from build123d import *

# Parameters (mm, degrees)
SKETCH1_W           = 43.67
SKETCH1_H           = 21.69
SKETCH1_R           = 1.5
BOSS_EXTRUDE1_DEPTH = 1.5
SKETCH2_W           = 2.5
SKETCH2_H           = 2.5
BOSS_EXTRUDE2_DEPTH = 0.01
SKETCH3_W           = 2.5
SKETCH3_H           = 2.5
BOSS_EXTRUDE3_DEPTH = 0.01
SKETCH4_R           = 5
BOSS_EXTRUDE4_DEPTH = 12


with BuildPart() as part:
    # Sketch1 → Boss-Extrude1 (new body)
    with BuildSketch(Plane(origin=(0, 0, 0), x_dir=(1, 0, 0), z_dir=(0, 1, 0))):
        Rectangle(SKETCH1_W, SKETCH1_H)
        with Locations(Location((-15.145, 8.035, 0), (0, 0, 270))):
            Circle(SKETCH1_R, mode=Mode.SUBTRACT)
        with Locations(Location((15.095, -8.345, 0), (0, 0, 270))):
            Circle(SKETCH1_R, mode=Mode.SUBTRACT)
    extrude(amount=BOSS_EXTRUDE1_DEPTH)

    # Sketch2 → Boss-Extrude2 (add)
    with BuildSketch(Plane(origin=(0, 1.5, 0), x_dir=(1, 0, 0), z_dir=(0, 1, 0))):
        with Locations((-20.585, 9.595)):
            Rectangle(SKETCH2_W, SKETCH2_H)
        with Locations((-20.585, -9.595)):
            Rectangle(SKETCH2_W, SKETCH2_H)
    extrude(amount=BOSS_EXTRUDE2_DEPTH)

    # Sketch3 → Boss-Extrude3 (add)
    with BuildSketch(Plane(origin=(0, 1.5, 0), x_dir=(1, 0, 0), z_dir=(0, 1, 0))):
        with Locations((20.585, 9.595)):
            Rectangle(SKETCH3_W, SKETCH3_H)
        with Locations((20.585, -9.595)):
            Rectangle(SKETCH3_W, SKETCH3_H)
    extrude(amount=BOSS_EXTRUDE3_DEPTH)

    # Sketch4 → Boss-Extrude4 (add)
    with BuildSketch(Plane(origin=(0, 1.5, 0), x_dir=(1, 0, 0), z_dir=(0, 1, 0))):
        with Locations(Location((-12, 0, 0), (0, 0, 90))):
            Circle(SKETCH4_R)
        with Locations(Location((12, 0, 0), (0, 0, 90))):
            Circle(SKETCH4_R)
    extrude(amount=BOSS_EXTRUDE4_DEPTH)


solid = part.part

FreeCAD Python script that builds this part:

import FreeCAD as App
import Part
import Sketcher


def add_polygon(sketch, points):
    """Adds a closed chain of lines whose ends are joined by coincident constraints."""
    first, n = sketch.GeometryCount, len(points)
    for a, b in zip(points, points[1:] + points[:1]):
        sketch.addGeometry(Part.LineSegment(App.Vector(*a, 0), App.Vector(*b, 0)), False)
    for i in range(n):
        sketch.addConstraint(Sketcher.Constraint("Coincident", first + i, 2, first + (i + 1) % n, 1))

doc = App.newDocument("Part")
body = doc.addObject("PartDesign::Body", "Body")

# Sketch on XZ plane
sketch1 = body.newObject("Sketcher::SketchObject", "Sketch")
sketch1.AttachmentSupport = (doc.getObject("XZ_Plane"), [""])
sketch1.MapMode = "FlatFace"
add_polygon(sketch1, [(-21.8, -10.8), (-21.8, 10.8), (21.8, 10.8), (21.8, -10.8)])  # lines 0-3
sketch1.addGeometry(Part.Circle(App.Vector(15.1, 8.3, 0), App.Vector(0, 0, 1), 1.5), False)  # 4
sketch1.addGeometry(Part.Circle(App.Vector(-15.1, -8, 0), App.Vector(0, 0, 1), 1.5), False)  # 5
sketch1.addConstraint([
    Sketcher.Constraint("Vertical", 0),
    Sketcher.Constraint("Horizontal", 1),
    Sketcher.Constraint("Vertical", 2),
    Sketcher.Constraint("Horizontal", 3),
    Sketcher.Constraint("Equal", 4, 5),
    Sketcher.Constraint("Symmetric", 0, 2, 2, 2, -1, 1),
    Sketcher.Constraint("Diameter", 4, 3.0),
    Sketcher.Constraint("DistanceX", 1, 1, 1, 2, 43.67),
    Sketcher.Constraint("DistanceY", 0, 1, 0, 2, 21.69),
    Sketcher.Constraint("DistanceY", 4, 3, 0, 2, 2.5),
    Sketcher.Constraint("DistanceX", 5, 3, 4, 3, 30.24),
    Sketcher.Constraint("DistanceY", 5, 3, 4, 3, 16.38),
    Sketcher.Constraint("DistanceX", 0, 2, 5, 3, 6.69),
])
pad1 = body.newObject("PartDesign::Pad", "Pad")
pad1.Profile = sketch1
pad1.Length = 1.5
pad1.Reversed = True

# Sketch on XZ plane
sketch2 = body.newObject("Sketcher::SketchObject", "Sketch001")
sketch2.AttachmentSupport = (doc.getObject("XZ_Plane"), [""])
sketch2.MapMode = "FlatFace"
sketch2.AttachmentOffset = App.Placement(App.Vector(0, 0, -1.5), App.Rotation())
add_polygon(sketch2, [(-21.8, -10.8), (-21.8, -8.3), (-19.3, -8.3), (-19.3, -10.8)])  # lines 0-3
add_polygon(sketch2, [(-21.8, 8.3), (-21.8, 10.8), (-19.3, 10.8), (-19.3, 8.3)])  # lines 4-7
sketch2.addConstraint([
    Sketcher.Constraint("Vertical", 0),
    Sketcher.Constraint("Horizontal", 1),
    Sketcher.Constraint("Vertical", 2),
    Sketcher.Constraint("Horizontal", 3),
    Sketcher.Constraint("Vertical", 4),
    Sketcher.Constraint("Horizontal", 5),
    Sketcher.Constraint("Vertical", 6),
    Sketcher.Constraint("Horizontal", 7),
    Sketcher.Constraint("Symmetric", 3, 2, 4, 2, -1),
    Sketcher.Constraint("Symmetric", 1, 2, 6, 2, -1),
    Sketcher.Constraint("Equal", 7, 0),
    Sketcher.Constraint("DistanceX", 1, 1, 1, 2, 2.5),
    Sketcher.Constraint("DistanceY", 0, 2, 4, 2, 19.19),
    Sketcher.Constraint("DistanceX", 0, 2, -1, 1, 21.835),
])
pad2 = body.newObject("PartDesign::Pad", "Pad001")
pad2.Profile = sketch2
pad2.Length = 0.01
pad2.Reversed = True

# Sketch on XZ plane
sketch3 = body.newObject("Sketcher::SketchObject", "Sketch002")
sketch3.AttachmentSupport = (doc.getObject("XZ_Plane"), [""])
sketch3.MapMode = "FlatFace"
sketch3.AttachmentOffset = App.Placement(App.Vector(0, 0, -1.5), App.Rotation())
add_polygon(sketch3, [(19.3, -10.8), (19.3, -8.3), (21.8, -8.3), (21.8, -10.8)])  # lines 0-3
add_polygon(sketch3, [(19.3, 8.3), (19.3, 10.8), (21.8, 10.8), (21.8, 8.3)])  # lines 4-7
sketch3.addConstraint([
    Sketcher.Constraint("Vertical", 0),
    Sketcher.Constraint("Horizontal", 1),
    Sketcher.Constraint("Vertical", 2),
    Sketcher.Constraint("Horizontal", 3),
    Sketcher.Constraint("Vertical", 4),
    Sketcher.Constraint("Horizontal", 5),
    Sketcher.Constraint("Vertical", 6),
    Sketcher.Constraint("Horizontal", 7),
    Sketcher.Constraint("Symmetric", 3, 2, 4, 2, -1),
    Sketcher.Constraint("Symmetric", 1, 2, 6, 2, -1),
    Sketcher.Constraint("Equal", 7, 0),
    Sketcher.Constraint("DistanceX", 1, 1, 1, 2, 2.5),
    Sketcher.Constraint("DistanceY", 0, 2, 4, 2, 19.19),
    Sketcher.Constraint("DistanceX", -1, 1, 0, 2, 19.335),
])
pad3 = body.newObject("PartDesign::Pad", "Pad002")
pad3.Profile = sketch3
pad3.Length = 0.01
pad3.Reversed = True

# Sketch on XZ plane
sketch4 = body.newObject("Sketcher::SketchObject", "Sketch003")
sketch4.AttachmentSupport = (doc.getObject("XZ_Plane"), [""])
sketch4.MapMode = "FlatFace"
sketch4.AttachmentOffset = App.Placement(App.Vector(0, 0, -1.5), App.Rotation())
sketch4.addGeometry([
    Part.Circle(App.Vector(-12, 0, 0), App.Vector(0, 0, 1), 5),
    Part.Circle(App.Vector(12, 0, 0), App.Vector(0, 0, 1), 5),
], False)
sketch4.addConstraint([
    Sketcher.Constraint("Equal", 0, 1),
    Sketcher.Constraint("Symmetric", 0, 3, 1, 3, -1, 1),
    Sketcher.Constraint("PointOnObject", 0, 3, -1),
    Sketcher.Constraint("Diameter", 0, 10.0),
    Sketcher.Constraint("DistanceX", 0, 3, -1, 1, 12.0),
])
pad4 = body.newObject("PartDesign::Pad", "Pad003")
pad4.Profile = sketch4
pad4.Length = 12
pad4.Reversed = True

doc.recompute()
